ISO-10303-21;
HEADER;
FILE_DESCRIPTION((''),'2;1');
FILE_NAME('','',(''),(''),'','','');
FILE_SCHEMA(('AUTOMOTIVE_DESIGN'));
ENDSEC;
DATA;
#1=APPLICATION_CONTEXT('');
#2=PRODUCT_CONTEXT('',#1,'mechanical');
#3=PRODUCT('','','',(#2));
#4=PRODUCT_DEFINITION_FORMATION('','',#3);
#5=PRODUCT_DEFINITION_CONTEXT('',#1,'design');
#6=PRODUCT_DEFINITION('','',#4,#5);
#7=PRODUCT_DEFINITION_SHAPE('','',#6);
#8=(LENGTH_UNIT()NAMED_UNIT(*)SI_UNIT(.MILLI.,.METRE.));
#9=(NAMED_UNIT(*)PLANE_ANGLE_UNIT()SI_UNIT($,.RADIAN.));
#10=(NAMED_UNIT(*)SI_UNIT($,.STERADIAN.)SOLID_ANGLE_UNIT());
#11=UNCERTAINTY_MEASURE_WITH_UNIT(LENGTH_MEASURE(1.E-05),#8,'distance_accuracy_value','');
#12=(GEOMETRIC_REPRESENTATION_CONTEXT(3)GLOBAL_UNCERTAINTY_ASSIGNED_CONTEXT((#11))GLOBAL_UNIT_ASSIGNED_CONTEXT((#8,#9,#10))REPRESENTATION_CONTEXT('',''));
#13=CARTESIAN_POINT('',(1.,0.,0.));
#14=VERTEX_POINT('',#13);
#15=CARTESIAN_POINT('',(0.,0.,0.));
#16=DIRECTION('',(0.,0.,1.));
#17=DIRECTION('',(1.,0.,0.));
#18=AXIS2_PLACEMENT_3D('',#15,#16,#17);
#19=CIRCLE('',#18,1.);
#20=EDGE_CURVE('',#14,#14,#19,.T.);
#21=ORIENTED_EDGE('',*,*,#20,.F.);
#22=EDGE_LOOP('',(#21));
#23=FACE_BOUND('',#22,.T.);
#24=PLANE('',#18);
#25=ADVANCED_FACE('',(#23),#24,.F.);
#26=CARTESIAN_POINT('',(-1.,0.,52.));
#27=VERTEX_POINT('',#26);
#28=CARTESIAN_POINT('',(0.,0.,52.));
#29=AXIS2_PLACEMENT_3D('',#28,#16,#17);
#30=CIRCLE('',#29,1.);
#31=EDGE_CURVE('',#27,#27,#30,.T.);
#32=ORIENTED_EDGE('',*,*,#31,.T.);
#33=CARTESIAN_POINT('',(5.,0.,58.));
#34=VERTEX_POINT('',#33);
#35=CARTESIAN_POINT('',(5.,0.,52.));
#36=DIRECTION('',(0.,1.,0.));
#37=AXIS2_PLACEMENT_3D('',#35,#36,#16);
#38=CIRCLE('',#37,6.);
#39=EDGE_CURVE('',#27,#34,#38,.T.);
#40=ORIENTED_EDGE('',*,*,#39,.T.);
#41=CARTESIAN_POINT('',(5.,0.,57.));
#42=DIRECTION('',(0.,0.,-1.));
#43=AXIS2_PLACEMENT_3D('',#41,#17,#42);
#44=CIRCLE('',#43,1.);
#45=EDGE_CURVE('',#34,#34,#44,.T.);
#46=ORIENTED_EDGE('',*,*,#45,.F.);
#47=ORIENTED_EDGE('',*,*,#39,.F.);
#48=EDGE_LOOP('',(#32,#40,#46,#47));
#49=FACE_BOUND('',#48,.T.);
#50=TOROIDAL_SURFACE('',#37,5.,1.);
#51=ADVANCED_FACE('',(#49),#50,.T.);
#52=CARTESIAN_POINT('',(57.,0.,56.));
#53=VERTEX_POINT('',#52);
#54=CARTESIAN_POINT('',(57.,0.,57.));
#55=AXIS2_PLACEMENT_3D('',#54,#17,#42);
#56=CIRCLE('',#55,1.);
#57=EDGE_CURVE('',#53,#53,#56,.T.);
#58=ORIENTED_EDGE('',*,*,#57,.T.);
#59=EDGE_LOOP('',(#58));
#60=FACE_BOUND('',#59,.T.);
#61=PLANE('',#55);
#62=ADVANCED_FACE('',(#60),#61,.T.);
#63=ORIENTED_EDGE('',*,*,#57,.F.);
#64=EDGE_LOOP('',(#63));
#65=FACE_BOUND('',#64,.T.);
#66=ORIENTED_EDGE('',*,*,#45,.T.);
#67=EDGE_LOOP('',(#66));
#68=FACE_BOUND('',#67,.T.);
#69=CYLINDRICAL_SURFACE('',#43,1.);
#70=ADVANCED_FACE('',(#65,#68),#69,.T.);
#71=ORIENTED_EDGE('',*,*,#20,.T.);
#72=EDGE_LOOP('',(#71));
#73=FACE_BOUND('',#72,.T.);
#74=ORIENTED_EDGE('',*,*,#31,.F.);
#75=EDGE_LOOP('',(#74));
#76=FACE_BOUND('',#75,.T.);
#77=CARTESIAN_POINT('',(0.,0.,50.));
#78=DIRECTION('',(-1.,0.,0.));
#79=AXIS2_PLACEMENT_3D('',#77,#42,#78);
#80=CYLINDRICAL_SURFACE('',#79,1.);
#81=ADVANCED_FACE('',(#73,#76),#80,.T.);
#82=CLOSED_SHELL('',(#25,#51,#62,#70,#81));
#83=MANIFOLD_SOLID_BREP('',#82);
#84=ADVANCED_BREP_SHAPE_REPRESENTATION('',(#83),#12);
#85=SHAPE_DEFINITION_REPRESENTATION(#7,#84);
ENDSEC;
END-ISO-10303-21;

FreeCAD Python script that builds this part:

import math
import FreeCAD as App
import Part
import Sketcher
Q = App.Units.Quantity

doc = App.newDocument("Part")
body = doc.addObject("PartDesign::Body", "Body")

sketch1 = doc.addObject("Sketcher::SketchObject", "Sketch")
body.addObject(sketch1)
sketch1.AttachmentSupport = (doc.XY_Plane, [""])
sketch1.MapMode = "FlatFace"
sketch1.addGeometry(Part.Circle(App.Vector(0, 0, 0), App.Vector(0, 0, 1), 1), False)
sketch1.addConstraint(Sketcher.Constraint("Coincident", 0, 3, -1, 1))
sketch1.addConstraint(Sketcher.Constraint("Diameter", 0, Q("2 mm")))
pad1 = doc.addObject("PartDesign::Pad", "Pad")
body.addObject(pad1)
pad1.Profile = sketch1
pad1.Length = 50

sketch2 = doc.addObject("Sketcher::SketchObject", "Sketch001")
body.addObject(sketch2)
sketch2.AttachmentSupport = (doc.XY_Plane, [""])
sketch2.MapMode = "FlatFace"
sketch2.AttachmentOffset = App.Placement(App.Vector(0, 0, 50), App.Rotation())
sketch2.addGeometry(Part.Circle(App.Vector(0, 0, 0), App.Vector(0, 0, 1), 1), False)
sketch2.addConstraint(Sketcher.Constraint("Coincident", 0, 3, -1, 1))
sketch2.addConstraint(Sketcher.Constraint("Diameter", 0, Q("2 mm")))

sketch3 = doc.addObject("Sketcher::SketchObject", "Sketch002")
body.addObject(sketch3)
sketch3.AttachmentSupport = (doc.XZ_Plane, [""])
sketch3.MapMode = "FlatFace"
sketch3.addGeometry(Part.LineSegment(App.Vector(0, 50, 0), App.Vector(0, 52, 0)), False)
sketch3.addGeometry(Part.ArcOfCircle(Part.Circle(App.Vector(5, 52, 0), App.Vector(0, 0, 1), 5), math.radians(90), math.radians(180)), False)
sketch3.addGeometry(Part.LineSegment(App.Vector(5, 57, 0), App.Vector(57, 57, 0)), False)
sketch3.addConstraint(Sketcher.Constraint("Tangent", 0, 2, 1, 2))
sketch3.addConstraint(Sketcher.Constraint("Tangent", 1, 1, 2, 1))
sketch3.addConstraint(Sketcher.Constraint("Vertical", 0))
sketch3.addConstraint(Sketcher.Constraint("Horizontal", 2))
sketch3.addConstraint(Sketcher.Constraint("PointOnObject", 0, 1, -2))
sketch3.addConstraint(Sketcher.Constraint("Radius", 1, Q("5 mm")))
sketch3.addConstraint(Sketcher.Constraint("DistanceX", 2, 1, 2, 2, Q("52 mm")))
sketch3.addConstraint(Sketcher.Constraint("DistanceY", 0, 1, 0, 2, Q("2 mm")))
sketch3.addConstraint(Sketcher.Constraint("DistanceY", -1, 1, 1, 3, Q("52 mm")))
doc.recompute()

additivepipe = doc.addObject("PartDesign::AdditivePipe", "AdditivePipe")
body.addObject(additivepipe)
additivepipe.Profile = sketch2
additivepipe.Spine = (sketch3, ["Edge1", "Edge2", "Edge3"])

doc.recompute()
